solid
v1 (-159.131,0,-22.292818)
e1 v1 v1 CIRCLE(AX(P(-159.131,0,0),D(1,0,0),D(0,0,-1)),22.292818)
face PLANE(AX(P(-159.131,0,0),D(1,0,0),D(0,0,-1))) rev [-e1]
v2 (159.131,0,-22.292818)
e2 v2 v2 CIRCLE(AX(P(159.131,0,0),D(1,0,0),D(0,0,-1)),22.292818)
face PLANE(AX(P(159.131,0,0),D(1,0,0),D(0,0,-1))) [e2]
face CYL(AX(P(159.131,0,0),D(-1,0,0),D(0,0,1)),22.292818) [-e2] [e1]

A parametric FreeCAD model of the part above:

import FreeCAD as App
import Part
import Sketcher
from FreeCAD import Vector
Q = App.Units.Quantity

doc = App.newDocument("Part")
body = doc.addObject("PartDesign::Body", "Body")

# Sketch on YZ plane
sketch1 = body.newObject("Sketcher::SketchObject", "Sketch")
sketch1.AttachmentSupport = (doc.getObject("YZ_Plane"), [""])
sketch1.MapMode = "FlatFace"
sketch1.addGeometry(Part.Circle(Vector(0, 0, 0), Vector(0, 0, 1), 22), False)
sketch1.addConstraint([
    Sketcher.Constraint("Coincident", 0, 3, -1, 1),
    Sketcher.Constraint("Diameter", 0, Q("44.585636 mm")),
])
pad1 = body.newObject("PartDesign::Pad", "Pad")
pad1.Profile = sketch1
pad1.Type = "TwoLengths"
pad1.Length = Q("6.265 in")
pad1.Length2 = Q("6.265 in")

doc.recompute()
